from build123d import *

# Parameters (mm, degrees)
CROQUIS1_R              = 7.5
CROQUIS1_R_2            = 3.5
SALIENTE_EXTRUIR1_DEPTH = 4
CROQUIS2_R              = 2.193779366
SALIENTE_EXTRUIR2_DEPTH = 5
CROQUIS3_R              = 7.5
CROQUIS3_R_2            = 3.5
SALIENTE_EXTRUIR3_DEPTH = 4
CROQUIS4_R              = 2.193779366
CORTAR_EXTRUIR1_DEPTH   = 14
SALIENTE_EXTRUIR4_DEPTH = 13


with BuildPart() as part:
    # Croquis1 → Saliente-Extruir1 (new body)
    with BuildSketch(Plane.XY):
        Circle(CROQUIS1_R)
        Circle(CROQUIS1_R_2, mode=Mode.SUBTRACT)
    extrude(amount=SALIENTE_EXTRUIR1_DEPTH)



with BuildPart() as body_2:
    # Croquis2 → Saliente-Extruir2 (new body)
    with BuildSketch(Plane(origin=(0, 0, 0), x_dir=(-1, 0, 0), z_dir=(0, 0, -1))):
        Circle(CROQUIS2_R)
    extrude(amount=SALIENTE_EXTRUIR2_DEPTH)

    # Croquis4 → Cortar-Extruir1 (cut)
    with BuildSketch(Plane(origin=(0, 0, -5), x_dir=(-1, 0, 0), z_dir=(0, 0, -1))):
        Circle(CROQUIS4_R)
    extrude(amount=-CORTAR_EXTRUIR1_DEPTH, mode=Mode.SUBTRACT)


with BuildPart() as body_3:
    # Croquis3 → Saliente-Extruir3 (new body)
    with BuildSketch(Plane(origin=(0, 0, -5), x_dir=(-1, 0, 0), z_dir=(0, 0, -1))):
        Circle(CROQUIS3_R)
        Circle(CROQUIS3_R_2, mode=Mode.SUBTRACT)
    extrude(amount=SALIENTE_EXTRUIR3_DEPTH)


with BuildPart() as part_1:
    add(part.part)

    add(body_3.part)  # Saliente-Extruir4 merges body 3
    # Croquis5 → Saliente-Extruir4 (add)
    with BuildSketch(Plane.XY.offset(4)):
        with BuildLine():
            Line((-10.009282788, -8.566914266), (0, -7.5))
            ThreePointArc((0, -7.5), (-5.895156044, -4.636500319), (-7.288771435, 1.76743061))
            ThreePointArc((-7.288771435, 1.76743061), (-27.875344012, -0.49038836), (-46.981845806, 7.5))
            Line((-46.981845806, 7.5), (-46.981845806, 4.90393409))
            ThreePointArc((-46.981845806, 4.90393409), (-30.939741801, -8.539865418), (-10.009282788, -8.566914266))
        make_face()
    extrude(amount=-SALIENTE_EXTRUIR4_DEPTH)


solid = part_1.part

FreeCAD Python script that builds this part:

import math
import FreeCAD as App
import Part
import Sketcher

V = App.Vector
Q = App.Units.Quantity

doc = App.newDocument("Part")
body = doc.addObject("PartDesign::Body", "Body")

# Sketch on XY plane
sketch1 = doc.addObject("Sketcher::SketchObject", "Sketch")
body.addObject(sketch1)
sketch1.AttachmentSupport = (doc.XY_Plane, [""])
sketch1.MapMode = "FlatFace"
sketch1.addGeometry([
    Part.Circle(V(0, 0, 0), V(0, 0, 1), 7.5),
    Part.Circle(V(0, 0, 0), V(0, 0, 1), 3.5),
], False)
sketch1.addConstraint([
    Sketcher.Constraint("Coincident", 0, 3, -1, 1),
    Sketcher.Constraint("Coincident", 1, 3, -1, 1),
    Sketcher.Constraint("Diameter", 0, Q("15 mm")),
    Sketcher.Constraint("Diameter", 1, Q("7 mm")),
])
pad1 = doc.addObject("PartDesign::Pad", "Pad")
body.addObject(pad1)
pad1.Profile = sketch1
pad1.Length = 4
body2 = doc.addObject("PartDesign::Body", "Body001")

# Sketch on XY plane
sketch2 = doc.addObject("Sketcher::SketchObject", "Sketch001")
body2.addObject(sketch2)
sketch2.AttachmentSupport = (doc.getObject("XY_Plane001"), [""])
sketch2.MapMode = "FlatFace"
sketch2.addGeometry(Part.Circle(V(0, 0, 0), V(0, 0, 1), 2.193779), False)
sketch2.addConstraint([
    Sketcher.Constraint("Coincident", 0, 3, -1, 1),
    Sketcher.Constraint("Diameter", 0, Q("4.387559 mm")),
])
pad2 = doc.addObject("PartDesign::Pad", "Pad001")
body2.addObject(pad2)
pad2.Profile = sketch2
pad2.Length = 5
pad2.Reversed = True

# Sketch on XY plane
sketch3 = doc.addObject("Sketcher::SketchObject", "Sketch002")
body2.addObject(sketch3)
sketch3.AttachmentSupport = (doc.getObject("XY_Plane001"), [""])
sketch3.MapMode = "FlatFace"
sketch3.AttachmentOffset = App.Placement(V(0, 0, -5), App.Rotation())
sketch3.addGeometry(Part.Circle(V(0, 0, 0), V(0, 0, 1), 2.193779), False)
sketch3.addConstraint([
    Sketcher.Constraint("Coincident", 0, 3, -1, 1),
    Sketcher.Constraint("Diameter", 0, Q("4.387559 mm")),
])
pocket1 = doc.addObject("PartDesign::Pocket", "Pocket")
body2.addObject(pocket1)
pocket1.Profile = sketch3
pocket1.Length = 14
pocket1.Reversed = True
body3 = doc.addObject("PartDesign::Body", "Body002")

# Sketch on XY plane
sketch4 = doc.addObject("Sketcher::SketchObject", "Sketch003")
body3.addObject(sketch4)
sketch4.AttachmentSupport = (doc.getObject("XY_Plane002"), [""])
sketch4.MapMode = "FlatFace"
sketch4.AttachmentOffset = App.Placement(V(0, 0, -5), App.Rotation())
sketch4.addGeometry([
    Part.Circle(V(0, 0, 0), V(0, 0, 1), 7.5),
    Part.Circle(V(0, 0, 0), V(0, 0, 1), 3.5),
], False)
sketch4.addConstraint([
    Sketcher.Constraint("Coincident", 0, 3, -1, 1),
    Sketcher.Constraint("Coincident", 1, 3, -1, 1),
    Sketcher.Constraint("Diameter", 0, Q("15 mm")),
    Sketcher.Constraint("Diameter", 1, Q("7 mm")),
])
pad3 = doc.addObject("PartDesign::Pad", "Pad002")
body3.addObject(pad3)
pad3.Profile = sketch4
pad3.Length = 4
pad3.Reversed = True
body.AllowCompound = True
doc.recompute()

boolean = doc.addObject("PartDesign::Boolean", "Boolean")
body.addObject(boolean)
boolean.Type = "Fuse"
boolean.addObjects([body3])

# Sketch on XY plane
sketch5 = doc.addObject("Sketcher::SketchObject", "Sketch004")
body.addObject(sketch5)
sketch5.AttachmentSupport = (doc.XY_Plane, [""])
sketch5.MapMode = "FlatFace"
sketch5.AttachmentOffset = App.Placement(V(0, 0, 4), App.Rotation())
sketch5.addGeometry([
    Part.LineSegment(V(-10.009283, -8.566914, 0), V(0, -7.5, 0)),  # 0
    Part.ArcOfCircle(Part.Circle(V(0, 0, 0), V(0, 0, 1), 7.5), math.radians(166.369622), math.radians(270)),  # 1
    Part.ArcOfCircle(Part.Circle(V(-21.954519, 40.506194, 0), V(0, 0, 1), 41.421926), math.radians(-127.171642), math.radians(-69.264302)),  # 2
    Part.LineSegment(V(-46.981846, 7.5, 0), V(-46.981846, 4.903934, 0)),  # 3
    Part.ArcOfCircle(Part.Circle(V(-20.437243, 20.285661, 0), V(0, 0, 1), 30.679203), math.radians(-149.909114), math.radians(-70.129021)),  # 4
], False)
sketch5.addConstraint([
    Sketcher.Constraint("Coincident", 0, 2, 1, 2),
    Sketcher.Constraint("Coincident", 1, 1, 2, 2),
    Sketcher.Constraint("Coincident", 2, 1, 3, 1),
    Sketcher.Constraint("Coincident", 3, 2, 4, 1),
    Sketcher.Constraint("Coincident", 4, 2, 0, 1),
    Sketcher.Constraint("Vertical", 3),
    Sketcher.Constraint("Coincident", 1, 3, -1, 1),
    Sketcher.Constraint("PointOnObject", 0, 2, -2),
    Sketcher.Constraint("Radius", 1, Q("7.5 mm")),
    Sketcher.Constraint("DistanceY", 0, 2, 2, 1, Q("15 mm")),
    Sketcher.Constraint("Radius", 2, Q("41.421926 mm")),
    Sketcher.Constraint("Radius", 4, Q("30.679203 mm")),
    Sketcher.Constraint("DistanceY", 3, 2, 3, 1, Q("2.596066 mm")),
    Sketcher.Constraint("DistanceX", 2, 3, -1, 1, Q("21.954519 mm")),
    Sketcher.Constraint("DistanceY", -1, 1, 4, 3, Q("20.285661 mm")),
    Sketcher.Constraint("DistanceX", 1, 1, -1, 1, Q("7.288771 mm")),
    Sketcher.Constraint("DistanceX", 4, 2, 1, 1, Q("2.720511 mm")),
])
pad4 = doc.addObject("PartDesign::Pad", "Pad003")
body.addObject(pad4)
pad4.Profile = sketch5
pad4.Length = 13
pad4.Reversed = True

doc.recompute()
